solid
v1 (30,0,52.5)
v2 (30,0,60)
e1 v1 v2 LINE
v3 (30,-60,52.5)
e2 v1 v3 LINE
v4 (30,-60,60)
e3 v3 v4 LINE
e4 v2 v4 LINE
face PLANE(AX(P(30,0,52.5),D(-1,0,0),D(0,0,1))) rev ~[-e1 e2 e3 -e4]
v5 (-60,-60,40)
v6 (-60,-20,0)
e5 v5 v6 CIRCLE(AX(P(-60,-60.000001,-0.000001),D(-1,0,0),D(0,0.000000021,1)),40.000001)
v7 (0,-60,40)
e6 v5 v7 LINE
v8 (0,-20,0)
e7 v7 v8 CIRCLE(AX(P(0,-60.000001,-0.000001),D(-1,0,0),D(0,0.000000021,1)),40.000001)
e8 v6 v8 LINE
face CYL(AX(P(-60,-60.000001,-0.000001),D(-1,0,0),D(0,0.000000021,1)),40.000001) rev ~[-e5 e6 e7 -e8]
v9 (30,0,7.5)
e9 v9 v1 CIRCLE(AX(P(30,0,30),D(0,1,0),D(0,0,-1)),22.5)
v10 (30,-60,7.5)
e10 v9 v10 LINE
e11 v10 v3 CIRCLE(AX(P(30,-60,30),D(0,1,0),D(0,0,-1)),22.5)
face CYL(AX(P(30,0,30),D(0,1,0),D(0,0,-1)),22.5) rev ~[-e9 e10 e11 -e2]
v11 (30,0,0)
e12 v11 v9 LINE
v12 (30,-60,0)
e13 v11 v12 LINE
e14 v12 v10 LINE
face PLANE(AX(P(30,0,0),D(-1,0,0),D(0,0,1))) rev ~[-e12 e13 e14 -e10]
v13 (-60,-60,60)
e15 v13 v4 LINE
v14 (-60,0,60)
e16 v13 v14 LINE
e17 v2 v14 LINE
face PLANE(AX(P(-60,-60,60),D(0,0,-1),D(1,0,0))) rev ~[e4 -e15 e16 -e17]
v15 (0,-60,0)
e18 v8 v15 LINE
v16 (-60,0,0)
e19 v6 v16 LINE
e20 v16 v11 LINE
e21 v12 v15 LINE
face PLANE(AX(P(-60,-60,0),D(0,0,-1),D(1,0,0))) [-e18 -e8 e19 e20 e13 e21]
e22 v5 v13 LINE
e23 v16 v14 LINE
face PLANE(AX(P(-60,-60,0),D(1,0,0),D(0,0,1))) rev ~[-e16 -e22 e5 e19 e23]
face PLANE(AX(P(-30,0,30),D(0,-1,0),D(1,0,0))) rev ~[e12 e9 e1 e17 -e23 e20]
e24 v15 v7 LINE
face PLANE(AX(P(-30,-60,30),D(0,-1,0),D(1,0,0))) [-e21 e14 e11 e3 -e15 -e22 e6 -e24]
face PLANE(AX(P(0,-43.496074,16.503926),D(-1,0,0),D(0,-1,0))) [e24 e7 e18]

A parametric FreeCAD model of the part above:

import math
import FreeCAD as App
import Part
import Sketcher
Q = App.Units.Quantity


def add_polygon(sketch, points):
    """Adds a closed chain of lines whose ends are joined by coincident constraints."""
    first, n = sketch.GeometryCount, len(points)
    for a, b in zip(points, points[1:] + points[:1]):
        sketch.addGeometry(Part.LineSegment(App.Vector(*a, 0), App.Vector(*b, 0)), False)
    for i in range(n):
        sketch.addConstraint(Sketcher.Constraint("Coincident", first + i, 2, first + (i + 1) % n, 1))

doc = App.newDocument("Part")
params = doc.addObject("Spreadsheet::Sheet", "Params")
for row, (alias, value) in enumerate([
    ("sketch1_radius", "22.5 mm"),
    ("sketch1_width", "30 mm"),
    ("sketch1_height", "60 mm"),
    ("pad1_length", "60 mm"),
    ("sketch2_width", "60 mm"),
    ("pad2_length", "60 mm"),
    ("sketch3_radius", "40.000001 mm"),
    ("pocket1_length", "60 mm"),
], start=1):
    params.set(f"A{row}", alias)
    params.set(f"B{row}", "=" + value)
    params.setAlias(f"B{row}", alias)

body = doc.addObject("PartDesign::Body", "Body")

# Sketch on XZ plane
sketch1 = body.newObject("Sketcher::SketchObject", "Sketch")
sketch1.AttachmentSupport = (doc.getObject("XZ_Plane"), [""])
sketch1.MapMode = "FlatFace"
sketch1.addGeometry([
    Part.LineSegment(App.Vector(0, 60, 0), App.Vector(0, 0, 0)),  # 0
    Part.LineSegment(App.Vector(0, 0, 0), App.Vector(30, 0, 0)),  # 1
    Part.LineSegment(App.Vector(30, 0, 0), App.Vector(30, 8, 0)),  # 2
    Part.ArcOfCircle(Part.Circle(App.Vector(30, 30, 0), App.Vector(0, 0, 1), 22), math.radians(90), math.radians(270)),  # 3
    Part.LineSegment(App.Vector(30, 52, 0), App.Vector(30, 60, 0)),  # 4
    Part.LineSegment(App.Vector(30, 60, 0), App.Vector(0, 60, 0)),  # 5
], False)
sketch1.addConstraint([
    Sketcher.Constraint("Coincident", 0, 2, 1, 1),
    Sketcher.Constraint("Coincident", 1, 2, 2, 1),
    Sketcher.Constraint("Coincident", 2, 2, 3, 2),
    Sketcher.Constraint("Coincident", 3, 1, 4, 1),
    Sketcher.Constraint("Coincident", 4, 2, 5, 1),
    Sketcher.Constraint("Coincident", 5, 2, 0, 1),
    Sketcher.Constraint("Vertical", 0),
    Sketcher.Constraint("Horizontal", 1),
    Sketcher.Constraint("Vertical", 2),
    Sketcher.Constraint("Vertical", 4),
    Sketcher.Constraint("Horizontal", 5),
    Sketcher.Constraint("Coincident", 0, 2, -1, 1),
    Sketcher.Constraint("Vertical", 3, 3, 1, 2),
    Sketcher.Constraint("Vertical", 2, 2, 3, 1),
    Sketcher.Constraint("Equal", 2, 4),
    Sketcher.Constraint("Radius", 3, Q("22.5 mm")),
    Sketcher.Constraint("DistanceX", 1, 1, 1, 2, Q("30 mm")),
    Sketcher.Constraint("DistanceY", 0, 2, 0, 1, Q("60 mm")),
])
sketch1.setExpression("Constraints[15]", "Params.sketch1_radius")
sketch1.setExpression("Constraints[16]", "Params.sketch1_width")
sketch1.setExpression("Constraints[17]", "Params.sketch1_height")
pad1 = body.newObject("PartDesign::Pad", "Pad")
pad1.Profile = sketch1
pad1.setExpression("Length", "Params.pad1_length")

# Sketch on XZ plane
sketch2 = body.newObject("Sketcher::SketchObject", "Sketch001")
sketch2.AttachmentSupport = (doc.getObject("XZ_Plane"), [""])
sketch2.MapMode = "FlatFace"
sketch2.AttachmentOffset = App.Placement(App.Vector(0, 0, 60), App.Rotation())
add_polygon(sketch2, [(-60, 60), (-60, 0), (0, 0), (0, 60)])  # lines 0-3
sketch2.addConstraint([
    Sketcher.Constraint("Vertical", 0),
    Sketcher.Constraint("Horizontal", 1),
    Sketcher.Constraint("Vertical", 2),
    Sketcher.Constraint("Horizontal", 3),
    Sketcher.Constraint("Coincident", 1, 2, -1, 1),
    Sketcher.Constraint("Equal", 3, 0),
    Sketcher.Constraint("DistanceX", 1, 1, 1, 2, Q("60 mm")),
])
sketch2.setExpression("Constraints[10]", "Params.sketch2_width")
pad2 = body.newObject("PartDesign::Pad", "Pad001")
pad2.Profile = sketch2
pad2.setExpression("Length", "Params.pad2_length")
pad2.Reversed = True

# Sketch on YZ plane
sketch3 = body.newObject("Sketcher::SketchObject", "Sketch002")
sketch3.AttachmentSupport = (doc.getObject("YZ_Plane"), [""])
sketch3.MapMode = "FlatFace"
sketch3.AttachmentOffset = App.Placement(App.Vector(0, 0, -60), App.Rotation())
sketch3.addGeometry([
    Part.LineSegment(App.Vector(-60, 0, 0), App.Vector(-60, 40, 0)),
    Part.ArcOfCircle(Part.Circle(App.Vector(-60, 0, 0), App.Vector(0, 0, 1), 40), math.radians(0), math.radians(90)),
    Part.LineSegment(App.Vector(-20, 0, 0), App.Vector(-60, 0, 0)),
], False)
sketch3.addConstraint([
    Sketcher.Constraint("Coincident", 0, 2, 1, 2),
    Sketcher.Constraint("Coincident", 1, 1, 2, 1),
    Sketcher.Constraint("Coincident", 2, 2, 0, 1),
    Sketcher.Constraint("Vertical", 0),
    Sketcher.Constraint("Horizontal", 2),
    Sketcher.Constraint("Coincident", 2, 2, 1, 3),
    Sketcher.Constraint("PointOnObject", 1, 3, -1),
    Sketcher.Constraint("Radius", 1, Q("40.000001 mm")),
    Sketcher.Constraint("DistanceX", 1, 3, -1, 1, Q("60.000001 mm")),
])
sketch3.setExpression("Constraints[7]", "Params.sketch3_radius")
pocket1 = body.newObject("PartDesign::Pocket", "Pocket")
pocket1.Profile = sketch3
pocket1.setExpression("Length", "Params.pocket1_length")
pocket1.Reversed = True

doc.recompute()
